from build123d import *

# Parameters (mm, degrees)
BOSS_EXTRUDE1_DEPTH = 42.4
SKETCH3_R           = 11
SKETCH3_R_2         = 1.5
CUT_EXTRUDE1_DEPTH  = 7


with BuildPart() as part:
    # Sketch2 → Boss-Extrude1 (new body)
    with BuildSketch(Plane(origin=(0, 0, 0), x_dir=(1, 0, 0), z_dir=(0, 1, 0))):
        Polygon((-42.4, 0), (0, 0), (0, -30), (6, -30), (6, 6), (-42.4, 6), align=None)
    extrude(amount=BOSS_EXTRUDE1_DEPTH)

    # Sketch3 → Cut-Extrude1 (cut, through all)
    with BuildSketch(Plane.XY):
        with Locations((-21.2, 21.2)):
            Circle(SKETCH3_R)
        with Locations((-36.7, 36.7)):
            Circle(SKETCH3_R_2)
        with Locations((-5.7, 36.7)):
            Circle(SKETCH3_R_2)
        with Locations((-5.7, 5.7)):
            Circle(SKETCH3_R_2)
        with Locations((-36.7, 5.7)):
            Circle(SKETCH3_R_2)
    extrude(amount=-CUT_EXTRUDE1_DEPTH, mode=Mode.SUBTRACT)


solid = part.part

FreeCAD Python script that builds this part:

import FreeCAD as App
import Part
import Sketcher

V = App.Vector

doc = App.newDocument("Part")
body = doc.addObject("PartDesign::Body", "Body")

# Sketch on XZ plane
sketch1 = doc.addObject("Sketcher::SketchObject", "Sketch")
body.addObject(sketch1)
sketch1.AttachmentSupport = (doc.XZ_Plane, [""])
sketch1.MapMode = "FlatFace"
sketch1.addGeometry(Part.LineSegment(V(-42.4, 0, 0), V(0, 0, 0)), False)
sketch1.addGeometry(Part.LineSegment(V(0, 0, 0), V(0, 30, 0)), False)
sketch1.addGeometry(Part.LineSegment(V(0, 30, 0), V(6, 30, 0)), False)
sketch1.addGeometry(Part.LineSegment(V(6, 30, 0), V(6, -6, 0)), False)
sketch1.addGeometry(Part.LineSegment(V(6, -6, 0), V(-42.4, -6, 0)), False)
sketch1.addGeometry(Part.LineSegment(V(-42.4, -6, 0), V(-42.4, 0, 0)), False)
sketch1.addConstraint(Sketcher.Constraint("Coincident", 0, 2, 1, 1))
sketch1.addConstraint(Sketcher.Constraint("Coincident", 1, 2, 2, 1))
sketch1.addConstraint(Sketcher.Constraint("Coincident", 2, 2, 3, 1))
sketch1.addConstraint(Sketcher.Constraint("Coincident", 3, 2, 4, 1))
sketch1.addConstraint(Sketcher.Constraint("Coincident", 4, 2, 5, 1))
sketch1.addConstraint(Sketcher.Constraint("Coincident", 5, 2, 0, 1))
sketch1.addConstraint(Sketcher.Constraint("Horizontal", 0))
sketch1.addConstraint(Sketcher.Constraint("Vertical", 1))
sketch1.addConstraint(Sketcher.Constraint("Horizontal", 2))
sketch1.addConstraint(Sketcher.Constraint("Vertical", 3))
sketch1.addConstraint(Sketcher.Constraint("Horizontal", 4))
sketch1.addConstraint(Sketcher.Constraint("Vertical", 5))
sketch1.addConstraint(Sketcher.Constraint("Coincident", 0, 2, -1, 1))
sketch1.addConstraint(Sketcher.Constraint("Equal", 2, 5))
sketch1.addConstraint(Sketcher.Constraint("DistanceX", 2, 1, 2, 2, 6.0))
sketch1.addConstraint(Sketcher.Constraint("DistanceY", 1, 1, 1, 2, 30.0))
sketch1.addConstraint(Sketcher.Constraint("DistanceX", 0, 1, 0, 2, 42.4))
pad1 = doc.addObject("PartDesign::Pad", "Pad")
body.addObject(pad1)
pad1.Profile = sketch1
pad1.Length = 42.4
pad1.Reversed = True

# Sketch on XY plane
sketch2 = doc.addObject("Sketcher::SketchObject", "Sketch001")
body.addObject(sketch2)
sketch2.AttachmentSupport = (doc.XY_Plane, [""])
sketch2.MapMode = "FlatFace"
sketch2.addGeometry(Part.Circle(V(-21.2, 21.2, 0), V(0, 0, 1), 11), False)
sketch2.addGeometry(Part.Circle(V(-36.7, 36.7, 0), V(0, 0, 1), 1.5), False)
sketch2.addGeometry(Part.Circle(V(-5.7, 36.7, 0), V(0, 0, 1), 1.5), False)
sketch2.addGeometry(Part.Circle(V(-5.7, 5.7, 0), V(0, 0, 1), 1.5), False)
sketch2.addGeometry(Part.Circle(V(-36.7, 5.7, 0), V(0, 0, 1), 1.5), False)
sketch2.addConstraint(Sketcher.Constraint("Equal", 1, 2))
sketch2.addConstraint(Sketcher.Constraint("Equal", 2, 3))
sketch2.addConstraint(Sketcher.Constraint("Equal", 3, 4))
sketch2.addConstraint(Sketcher.Constraint("Horizontal", 1, 3, 2, 3))
sketch2.addConstraint(Sketcher.Constraint("Horizontal", 3, 3, 4, 3))
sketch2.addConstraint(Sketcher.Constraint("Vertical", 2, 3, 3, 3))
sketch2.addConstraint(Sketcher.Constraint("Vertical", 1, 3, 4, 3))
sketch2.addConstraint(Sketcher.Constraint("Diameter", 0, 22.0))
sketch2.addConstraint(Sketcher.Constraint("Diameter", 1, 3.0))
sketch2.addConstraint(Sketcher.Constraint("DistanceX", 1, 3, 2, 3, 31.0))
sketch2.addConstraint(Sketcher.Constraint("DistanceY", 3, 3, 2, 3, 31.0))
sketch2.addConstraint(Sketcher.Constraint("DistanceX", 0, 3, -1, 1, 21.2))
sketch2.addConstraint(Sketcher.Constraint("DistanceY", -1, 1, 0, 3, 21.2))
sketch2.addConstraint(Sketcher.Constraint("DistanceX", 1, 3, -1, 1, 36.7))
sketch2.addConstraint(Sketcher.Constraint("DistanceY", -1, 1, 1, 3, 36.7))
pocket1 = doc.addObject("PartDesign::Pocket", "Pocket")
body.addObject(pocket1)
pocket1.Profile = sketch2
pocket1.Type = "ThroughAll"

doc.recompute()
